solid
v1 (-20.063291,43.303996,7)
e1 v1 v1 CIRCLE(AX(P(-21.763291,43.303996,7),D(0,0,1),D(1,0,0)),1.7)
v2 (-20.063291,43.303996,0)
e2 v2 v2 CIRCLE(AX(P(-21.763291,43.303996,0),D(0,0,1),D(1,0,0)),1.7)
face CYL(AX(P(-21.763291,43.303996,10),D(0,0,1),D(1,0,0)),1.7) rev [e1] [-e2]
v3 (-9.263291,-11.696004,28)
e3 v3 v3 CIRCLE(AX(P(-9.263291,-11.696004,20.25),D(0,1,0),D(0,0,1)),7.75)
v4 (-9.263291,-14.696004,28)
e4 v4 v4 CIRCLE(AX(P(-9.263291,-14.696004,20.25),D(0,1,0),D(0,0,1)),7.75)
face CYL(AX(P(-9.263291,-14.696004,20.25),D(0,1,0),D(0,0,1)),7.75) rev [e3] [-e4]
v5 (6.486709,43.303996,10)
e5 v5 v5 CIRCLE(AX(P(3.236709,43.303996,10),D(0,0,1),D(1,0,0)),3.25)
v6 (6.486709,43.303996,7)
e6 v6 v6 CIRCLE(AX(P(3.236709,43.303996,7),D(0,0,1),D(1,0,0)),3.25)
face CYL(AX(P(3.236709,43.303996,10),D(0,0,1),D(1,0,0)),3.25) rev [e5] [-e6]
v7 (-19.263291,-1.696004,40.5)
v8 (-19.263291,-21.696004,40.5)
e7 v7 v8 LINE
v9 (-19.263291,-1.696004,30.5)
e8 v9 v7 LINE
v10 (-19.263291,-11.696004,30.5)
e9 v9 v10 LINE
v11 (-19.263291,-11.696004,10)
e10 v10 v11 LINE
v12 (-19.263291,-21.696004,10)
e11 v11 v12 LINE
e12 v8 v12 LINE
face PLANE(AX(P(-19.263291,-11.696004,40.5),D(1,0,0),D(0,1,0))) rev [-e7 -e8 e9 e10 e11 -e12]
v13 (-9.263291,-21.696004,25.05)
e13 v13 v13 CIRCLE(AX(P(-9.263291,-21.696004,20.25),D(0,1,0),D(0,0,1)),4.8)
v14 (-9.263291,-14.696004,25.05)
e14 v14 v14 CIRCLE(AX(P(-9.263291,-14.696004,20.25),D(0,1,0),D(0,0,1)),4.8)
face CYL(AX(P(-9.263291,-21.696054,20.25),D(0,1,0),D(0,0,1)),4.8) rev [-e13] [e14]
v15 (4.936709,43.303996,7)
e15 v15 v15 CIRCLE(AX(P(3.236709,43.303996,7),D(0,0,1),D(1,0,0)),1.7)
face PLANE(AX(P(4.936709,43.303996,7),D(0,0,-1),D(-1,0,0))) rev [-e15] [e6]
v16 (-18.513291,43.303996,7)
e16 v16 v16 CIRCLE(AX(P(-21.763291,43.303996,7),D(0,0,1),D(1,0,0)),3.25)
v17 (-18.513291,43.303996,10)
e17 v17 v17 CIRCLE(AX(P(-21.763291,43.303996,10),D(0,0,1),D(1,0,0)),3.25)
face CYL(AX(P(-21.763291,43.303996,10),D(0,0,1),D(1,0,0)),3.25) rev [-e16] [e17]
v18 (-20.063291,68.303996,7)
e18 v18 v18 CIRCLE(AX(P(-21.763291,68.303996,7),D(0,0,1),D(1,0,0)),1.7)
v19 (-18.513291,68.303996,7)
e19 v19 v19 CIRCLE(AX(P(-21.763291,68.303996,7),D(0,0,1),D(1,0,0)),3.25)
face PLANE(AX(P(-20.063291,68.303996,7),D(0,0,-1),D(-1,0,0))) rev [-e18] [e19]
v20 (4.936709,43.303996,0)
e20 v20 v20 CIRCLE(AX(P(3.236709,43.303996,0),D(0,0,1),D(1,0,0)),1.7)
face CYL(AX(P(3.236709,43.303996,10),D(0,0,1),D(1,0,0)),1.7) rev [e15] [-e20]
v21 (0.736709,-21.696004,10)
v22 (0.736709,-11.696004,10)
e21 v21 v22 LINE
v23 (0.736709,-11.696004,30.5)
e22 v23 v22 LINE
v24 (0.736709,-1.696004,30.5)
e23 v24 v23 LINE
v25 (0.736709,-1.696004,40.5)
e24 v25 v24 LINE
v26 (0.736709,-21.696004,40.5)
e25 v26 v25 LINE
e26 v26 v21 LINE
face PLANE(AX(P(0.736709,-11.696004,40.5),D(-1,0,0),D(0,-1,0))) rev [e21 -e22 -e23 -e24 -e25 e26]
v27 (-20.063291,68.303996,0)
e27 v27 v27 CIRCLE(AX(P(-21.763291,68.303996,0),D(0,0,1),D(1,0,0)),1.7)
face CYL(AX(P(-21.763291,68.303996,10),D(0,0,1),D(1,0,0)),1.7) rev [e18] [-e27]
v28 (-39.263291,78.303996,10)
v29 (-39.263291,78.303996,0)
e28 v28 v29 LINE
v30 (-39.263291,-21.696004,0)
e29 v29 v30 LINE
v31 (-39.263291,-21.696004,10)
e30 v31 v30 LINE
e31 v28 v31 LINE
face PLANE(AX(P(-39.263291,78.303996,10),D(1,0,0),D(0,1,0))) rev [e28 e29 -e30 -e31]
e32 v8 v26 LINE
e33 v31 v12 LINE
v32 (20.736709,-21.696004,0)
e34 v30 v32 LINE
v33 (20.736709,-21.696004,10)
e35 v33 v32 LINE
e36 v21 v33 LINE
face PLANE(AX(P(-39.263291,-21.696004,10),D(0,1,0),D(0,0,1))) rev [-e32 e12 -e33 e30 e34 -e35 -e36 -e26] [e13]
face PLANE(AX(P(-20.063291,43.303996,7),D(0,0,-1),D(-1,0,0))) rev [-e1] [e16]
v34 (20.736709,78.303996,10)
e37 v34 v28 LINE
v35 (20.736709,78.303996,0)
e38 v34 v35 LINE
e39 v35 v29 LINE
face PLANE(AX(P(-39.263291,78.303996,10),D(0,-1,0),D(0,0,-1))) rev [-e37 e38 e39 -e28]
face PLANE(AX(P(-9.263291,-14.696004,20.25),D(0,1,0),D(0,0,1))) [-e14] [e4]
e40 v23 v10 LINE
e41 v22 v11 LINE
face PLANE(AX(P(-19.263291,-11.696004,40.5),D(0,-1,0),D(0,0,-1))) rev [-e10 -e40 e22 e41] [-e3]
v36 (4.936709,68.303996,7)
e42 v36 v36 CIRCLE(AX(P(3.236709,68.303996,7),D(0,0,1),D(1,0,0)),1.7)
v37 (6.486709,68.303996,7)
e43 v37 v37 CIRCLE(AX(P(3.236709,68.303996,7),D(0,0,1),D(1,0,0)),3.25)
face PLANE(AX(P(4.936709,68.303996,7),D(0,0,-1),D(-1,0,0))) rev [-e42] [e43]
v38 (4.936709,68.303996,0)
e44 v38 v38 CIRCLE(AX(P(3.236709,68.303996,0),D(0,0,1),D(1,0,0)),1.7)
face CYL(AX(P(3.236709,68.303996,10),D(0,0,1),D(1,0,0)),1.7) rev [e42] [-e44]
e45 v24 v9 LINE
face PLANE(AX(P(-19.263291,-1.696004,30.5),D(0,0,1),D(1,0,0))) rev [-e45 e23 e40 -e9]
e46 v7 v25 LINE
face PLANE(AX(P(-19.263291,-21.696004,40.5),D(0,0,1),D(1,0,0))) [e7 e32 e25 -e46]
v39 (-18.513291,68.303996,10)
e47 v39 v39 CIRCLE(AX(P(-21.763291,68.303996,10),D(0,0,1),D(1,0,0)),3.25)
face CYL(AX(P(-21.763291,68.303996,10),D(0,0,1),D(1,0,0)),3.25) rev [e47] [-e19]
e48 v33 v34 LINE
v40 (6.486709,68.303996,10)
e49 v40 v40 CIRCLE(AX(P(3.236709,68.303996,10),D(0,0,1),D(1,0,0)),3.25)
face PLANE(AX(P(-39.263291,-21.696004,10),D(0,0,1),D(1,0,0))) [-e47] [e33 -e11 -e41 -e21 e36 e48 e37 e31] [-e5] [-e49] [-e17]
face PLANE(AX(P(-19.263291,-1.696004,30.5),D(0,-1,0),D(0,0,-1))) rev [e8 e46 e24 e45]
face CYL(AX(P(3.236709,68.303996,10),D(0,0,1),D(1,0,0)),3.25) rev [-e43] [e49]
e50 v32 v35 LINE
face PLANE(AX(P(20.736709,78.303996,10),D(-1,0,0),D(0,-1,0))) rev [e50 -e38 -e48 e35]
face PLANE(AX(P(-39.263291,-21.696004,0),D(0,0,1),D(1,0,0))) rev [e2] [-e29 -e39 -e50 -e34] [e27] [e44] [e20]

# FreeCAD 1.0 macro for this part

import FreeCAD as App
import Part
import Sketcher
from FreeCAD import Vector
Q = App.Units.Quantity

doc = App.newDocument("Part")
body = doc.addObject("PartDesign::Body", "Body")

# Sketch on XY plane
sketch1 = body.newObject("Sketcher::SketchObject", "Sketch")
sketch1.AttachmentSupport = (doc.getObject("XY_Plane"), [""])
sketch1.MapMode = "FlatFace"
sketch1.addGeometry(Part.LineSegment(Vector(-39, 78, 0), Vector(-39, -22, 0)), False)
sketch1.addGeometry(Part.LineSegment(Vector(-39, -22, 0), Vector(21, -22, 0)), False)
sketch1.addGeometry(Part.LineSegment(Vector(21, -22, 0), Vector(21, 78, 0)), False)
sketch1.addGeometry(Part.LineSegment(Vector(21, 78, 0), Vector(-39, 78, 0)), False)
sketch1.addConstraint(Sketcher.Constraint("Coincident", 0, 2, 1, 1))
sketch1.addConstraint(Sketcher.Constraint("Coincident", 1, 2, 2, 1))
sketch1.addConstraint(Sketcher.Constraint("Coincident", 2, 2, 3, 1))
sketch1.addConstraint(Sketcher.Constraint("Coincident", 3, 2, 0, 1))
sketch1.addConstraint(Sketcher.Constraint("Vertical", 0))
sketch1.addConstraint(Sketcher.Constraint("Horizontal", 1))
sketch1.addConstraint(Sketcher.Constraint("Vertical", 2))
sketch1.addConstraint(Sketcher.Constraint("Horizontal", 3))
sketch1.addConstraint(Sketcher.Constraint("DistanceX", 1, 1, 1, 2, Q("60 mm")))
sketch1.addConstraint(Sketcher.Constraint("DistanceY", 0, 2, 0, 1, Q("100 mm")))
sketch1.addConstraint(Sketcher.Constraint("DistanceX", 0, 2, -1, 1, Q("39.263291 mm")))
sketch1.addConstraint(Sketcher.Constraint("DistanceY", 0, 2, -1, 1, Q("21.696004 mm")))
pad1 = body.newObject("PartDesign::Pad", "Pad")
pad1.Profile = sketch1
pad1.Length = 10

# Sketch on XY plane
sketch2 = body.newObject("Sketcher::SketchObject", "Sketch001")
sketch2.AttachmentSupport = (doc.getObject("XY_Plane"), [""])
sketch2.MapMode = "FlatFace"
sketch2.AttachmentOffset = App.Placement(Vector(0, 0, 10), App.Rotation())
sketch2.addGeometry(Part.LineSegment(Vector(-19, -12, 0), Vector(-19, -22, 0)), False)
sketch2.addGeometry(Part.LineSegment(Vector(-19, -22, 0), Vector(1, -22, 0)), False)
sketch2.addGeometry(Part.LineSegment(Vector(1, -22, 0), Vector(1, -12, 0)), False)
sketch2.addGeometry(Part.LineSegment(Vector(1, -12, 0), Vector(-19, -12, 0)), False)
sketch2.addConstraint(Sketcher.Constraint("Coincident", 0, 2, 1, 1))
sketch2.addConstraint(Sketcher.Constraint("Coincident", 1, 2, 2, 1))
sketch2.addConstraint(Sketcher.Constraint("Coincident", 2, 2, 3, 1))
sketch2.addConstraint(Sketcher.Constraint("Coincident", 3, 2, 0, 1))
sketch2.addConstraint(Sketcher.Constraint("Vertical", 0))
sketch2.addConstraint(Sketcher.Constraint("Horizontal", 1))
sketch2.addConstraint(Sketcher.Constraint("Vertical", 2))
sketch2.addConstraint(Sketcher.Constraint("Horizontal", 3))
sketch2.addConstraint(Sketcher.Constraint("DistanceX", 1, 1, 1, 2, Q("20 mm")))
sketch2.addConstraint(Sketcher.Constraint("DistanceY", 0, 2, 0, 1, Q("10 mm")))
sketch2.addConstraint(Sketcher.Constraint("DistanceX", 0, 2, -1, 1, Q("19.263291 mm")))
sketch2.addConstraint(Sketcher.Constraint("DistanceY", 0, 2, -1, 1, Q("21.696004 mm")))
pad2 = body.newObject("PartDesign::Pad", "Pad001")
pad2.Profile = sketch2
pad2.Length = 30.5

# Sketch on XZ plane
sketch3 = body.newObject("Sketcher::SketchObject", "Sketch002")
sketch3.AttachmentSupport = (doc.getObject("XZ_Plane"), [""])
sketch3.MapMode = "FlatFace"
sketch3.AttachmentOffset = App.Placement(Vector(0, 0, 11.696004), App.Rotation())
sketch3.addGeometry(Part.LineSegment(Vector(-19, 30, 0), Vector(-19, 40, 0)), False)
sketch3.addGeometry(Part.LineSegment(Vector(-19, 40, 0), Vector(1, 40, 0)), False)
sketch3.addGeometry(Part.LineSegment(Vector(1, 40, 0), Vector(1, 30, 0)), False)
sketch3.addGeometry(Part.LineSegment(Vector(1, 30, 0), Vector(-19, 30, 0)), False)
sketch3.addConstraint(Sketcher.Constraint("Coincident", 0, 2, 1, 1))
sketch3.addConstraint(Sketcher.Constraint("Coincident", 1, 2, 2, 1))
sketch3.addConstraint(Sketcher.Constraint("Coincident", 2, 2, 3, 1))
sketch3.addConstraint(Sketcher.Constraint("Coincident", 3, 2, 0, 1))
sketch3.addConstraint(Sketcher.Constraint("Vertical", 0))
sketch3.addConstraint(Sketcher.Constraint("Horizontal", 1))
sketch3.addConstraint(Sketcher.Constraint("Vertical", 2))
sketch3.addConstraint(Sketcher.Constraint("Horizontal", 3))
sketch3.addConstraint(Sketcher.Constraint("DistanceX", 1, 1, 1, 2, Q("20 mm")))
sketch3.addConstraint(Sketcher.Constraint("DistanceY", 0, 1, 0, 2, Q("10 mm")))
sketch3.addConstraint(Sketcher.Constraint("DistanceY", -1, 1, 0, 2, Q("40.5 mm")))
sketch3.addConstraint(Sketcher.Constraint("DistanceX", 0, 2, -1, 1, Q("19.263291 mm")))
pad3 = body.newObject("PartDesign::Pad", "Pad002")
pad3.Profile = sketch3
pad3.Length = 10
pad3.Reversed = True

# Sketch on XZ plane
sketch4 = body.newObject("Sketcher::SketchObject", "Sketch003")
sketch4.AttachmentSupport = (doc.getObject("XZ_Plane"), [""])
sketch4.MapMode = "FlatFace"
sketch4.AttachmentOffset = App.Placement(Vector(0, 0, 11.696004), App.Rotation())
sketch4.addGeometry(Part.Circle(Vector(-9, 20, 0), Vector(0, 0, 1), 8), False)
sketch4.addConstraint(Sketcher.Constraint("Diameter", 0, Q("15.5 mm")))
sketch4.addConstraint(Sketcher.Constraint("DistanceY", -1, 1, 0, 3, Q("20.25 mm")))
sketch4.addConstraint(Sketcher.Constraint("DistanceX", 0, 3, -1, 1, Q("9.263291 mm")))
pocket1 = body.newObject("PartDesign::Pocket", "Pocket")
pocket1.Profile = sketch4
pocket1.Length = 3
pocket1.Reversed = True

# Sketch on XZ plane
sketch5 = body.newObject("Sketcher::SketchObject", "Sketch004")
sketch5.AttachmentSupport = (doc.getObject("XZ_Plane"), [""])
sketch5.MapMode = "FlatFace"
sketch5.AttachmentOffset = App.Placement(Vector(0, 0, 14.696004), App.Rotation())
sketch5.addGeometry(Part.Circle(Vector(-9.3, 20.2, 0), Vector(0, 0, 1), 4.8), False)
sketch5.addConstraint(Sketcher.Constraint("Diameter", 0, Q("9.6 mm")))
sketch5.addConstraint(Sketcher.Constraint("DistanceY", -1, 1, 0, 3, Q("20.25 mm")))
sketch5.addConstraint(Sketcher.Constraint("DistanceX", 0, 3, -1, 1, Q("9.263291 mm")))
pocket2 = body.newObject("PartDesign::Pocket", "Pocket001")
pocket2.Profile = sketch5
pocket2.Type = "ThroughAll"
pocket2.Reversed = True

# Sketch on XY plane
sketch6 = body.newObject("Sketcher::SketchObject", "Sketch005")
sketch6.AttachmentSupport = (doc.getObject("XY_Plane"), [""])
sketch6.MapMode = "FlatFace"
sketch6.AttachmentOffset = App.Placement(Vector(0, 0, 10), App.Rotation())
sketch6.addGeometry(Part.Circle(Vector(-21.8, 68.3, 0), Vector(0, 0, 1), 1.7), False)
sketch6.addGeometry(Part.Circle(Vector(-21.8, 43.3, 0), Vector(0, 0, 1), 1.7), False)
sketch6.addGeometry(Part.Circle(Vector(3.2, 68.3, 0), Vector(0, 0, 1), 1.7), False)
sketch6.addGeometry(Part.Circle(Vector(3.2, 43.3, 0), Vector(0, 0, 1), 1.7), False)
sketch6.addConstraint(Sketcher.Constraint("Equal", 0, 1))
sketch6.addConstraint(Sketcher.Constraint("Equal", 1, 2))
sketch6.addConstraint(Sketcher.Constraint("Equal", 2, 3))
sketch6.addConstraint(Sketcher.Constraint("Horizontal", 0, 3, 2, 3))
sketch6.addConstraint(Sketcher.Constraint("Horizontal", 1, 3, 3, 3))
sketch6.addConstraint(Sketcher.Constraint("Vertical", 0, 3, 1, 3))
sketch6.addConstraint(Sketcher.Constraint("Vertical", 2, 3, 3, 3))
sketch6.addConstraint(Sketcher.Constraint("Diameter", 0, Q("3.4 mm")))
sketch6.addConstraint(Sketcher.Constraint("DistanceY", 1, 3, 0, 3, Q("25 mm")))
sketch6.addConstraint(Sketcher.Constraint("DistanceX", 0, 3, 2, 3, Q("25 mm")))
sketch6.addConstraint(Sketcher.Constraint("DistanceX", 0, 3, -1, 1, Q("21.763291 mm")))
sketch6.addConstraint(Sketcher.Constraint("DistanceY", -1, 1, 0, 3, Q("68.303996 mm")))
doc.recompute()
hole = body.newObject("PartDesign::Hole", "Hole")
hole.Profile = sketch6
hole.ThreadType = "None"
hole.Diameter = 3.4
hole.DepthType = "ThroughAll"
hole.HoleCutType = "Counterbore"
hole.HoleCutDiameter = 6.5
hole.HoleCutDepth = 3

doc.recompute()
